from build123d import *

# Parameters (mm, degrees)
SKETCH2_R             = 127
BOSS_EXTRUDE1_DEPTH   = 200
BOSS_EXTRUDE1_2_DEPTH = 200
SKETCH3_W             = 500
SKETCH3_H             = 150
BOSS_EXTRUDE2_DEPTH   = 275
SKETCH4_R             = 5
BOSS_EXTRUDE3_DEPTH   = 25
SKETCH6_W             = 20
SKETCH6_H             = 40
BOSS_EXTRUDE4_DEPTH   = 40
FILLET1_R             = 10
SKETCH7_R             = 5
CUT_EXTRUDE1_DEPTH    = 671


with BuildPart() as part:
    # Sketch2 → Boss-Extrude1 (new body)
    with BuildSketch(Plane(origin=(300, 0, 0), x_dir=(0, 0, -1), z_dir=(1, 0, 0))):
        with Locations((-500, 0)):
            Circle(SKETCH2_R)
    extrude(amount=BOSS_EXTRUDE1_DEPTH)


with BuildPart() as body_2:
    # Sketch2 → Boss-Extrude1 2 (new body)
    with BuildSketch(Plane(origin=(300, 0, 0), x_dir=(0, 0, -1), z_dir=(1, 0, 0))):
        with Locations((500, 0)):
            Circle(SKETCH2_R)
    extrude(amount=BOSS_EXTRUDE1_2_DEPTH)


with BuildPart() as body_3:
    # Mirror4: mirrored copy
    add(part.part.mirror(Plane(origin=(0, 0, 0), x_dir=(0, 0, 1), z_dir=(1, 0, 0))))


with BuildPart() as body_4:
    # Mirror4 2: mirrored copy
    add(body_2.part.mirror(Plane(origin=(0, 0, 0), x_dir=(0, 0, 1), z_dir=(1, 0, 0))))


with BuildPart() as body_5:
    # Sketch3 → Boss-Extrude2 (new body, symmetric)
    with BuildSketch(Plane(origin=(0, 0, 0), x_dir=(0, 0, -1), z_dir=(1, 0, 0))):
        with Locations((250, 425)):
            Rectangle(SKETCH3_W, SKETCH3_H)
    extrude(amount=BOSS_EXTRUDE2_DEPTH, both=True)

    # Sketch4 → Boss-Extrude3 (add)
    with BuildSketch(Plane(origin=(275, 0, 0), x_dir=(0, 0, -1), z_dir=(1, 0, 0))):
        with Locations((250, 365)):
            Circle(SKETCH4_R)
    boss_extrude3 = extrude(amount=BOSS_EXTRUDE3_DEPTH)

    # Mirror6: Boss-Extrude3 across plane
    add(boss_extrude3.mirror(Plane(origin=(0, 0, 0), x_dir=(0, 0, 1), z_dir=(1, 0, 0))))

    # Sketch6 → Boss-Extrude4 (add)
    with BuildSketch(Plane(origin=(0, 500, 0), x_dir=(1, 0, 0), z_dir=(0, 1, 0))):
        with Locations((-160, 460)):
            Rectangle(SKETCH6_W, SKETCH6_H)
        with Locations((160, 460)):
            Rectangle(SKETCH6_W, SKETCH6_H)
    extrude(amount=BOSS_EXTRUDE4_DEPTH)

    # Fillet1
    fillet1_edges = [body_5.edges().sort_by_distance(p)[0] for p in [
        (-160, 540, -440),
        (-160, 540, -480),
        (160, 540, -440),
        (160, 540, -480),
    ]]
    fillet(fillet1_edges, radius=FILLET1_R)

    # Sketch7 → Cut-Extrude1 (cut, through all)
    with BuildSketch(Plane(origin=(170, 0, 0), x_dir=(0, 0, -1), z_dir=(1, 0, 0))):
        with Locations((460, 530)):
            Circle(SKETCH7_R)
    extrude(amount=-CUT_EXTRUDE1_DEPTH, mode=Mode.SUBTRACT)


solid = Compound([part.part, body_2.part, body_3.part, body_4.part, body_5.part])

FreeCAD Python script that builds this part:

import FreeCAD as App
import Part
import Sketcher

V = App.Vector
Q = App.Units.Quantity


def edges_at(feature, points):
    """Names of the edges that pass closest to the given points."""
    edges = feature.Shape.Edges
    near = lambda p: min(range(len(edges)), key=lambda i: edges[i].distToShape(Part.Vertex(*p))[0])
    return sorted({f"Edge{near(p) + 1}" for p in points})


def add_polygon(sketch, points):
    """Adds a closed chain of lines whose ends are joined by coincident constraints."""
    first, n = sketch.GeometryCount, len(points)
    for a, b in zip(points, points[1:] + points[:1]):
        sketch.addGeometry(Part.LineSegment(App.Vector(*a, 0), App.Vector(*b, 0)), False)
    for i in range(n):
        sketch.addConstraint(Sketcher.Constraint("Coincident", first + i, 2, first + (i + 1) % n, 1))

doc = App.newDocument("Part")
body = doc.addObject("PartDesign::Body", "Body")

# Sketch on YZ plane
sketch1 = body.newObject("Sketcher::SketchObject", "Sketch")
sketch1.AttachmentSupport = (doc.getObject("YZ_Plane"), [""])
sketch1.MapMode = "FlatFace"
sketch1.AttachmentOffset = App.Placement(V(0, 0, 300), App.Rotation())
sketch1.addGeometry(Part.Circle(V(0, 500, 0), V(0, 0, 1), 127), False)
sketch1.addConstraint([
    Sketcher.Constraint("PointOnObject", 0, 3, -2),
    Sketcher.Constraint("Diameter", 0, Q("254 mm")),
    Sketcher.Constraint("DistanceY", -1, 1, 0, 3, Q("500 mm")),
])
pad1 = body.newObject("PartDesign::Pad", "Pad")
pad1.Profile = sketch1
pad1.Length = 200
body2 = doc.addObject("PartDesign::Body", "Body001")

# Sketch on YZ plane
sketch2 = body2.newObject("Sketcher::SketchObject", "Sketch001")
sketch2.AttachmentSupport = (doc.getObject("YZ_Plane001"), [""])
sketch2.MapMode = "FlatFace"
sketch2.AttachmentOffset = App.Placement(V(0, 0, 300), App.Rotation())
sketch2.addGeometry(Part.Circle(V(0, -500, 0), V(0, 0, 1), 127), False)
sketch2.addConstraint([
    Sketcher.Constraint("PointOnObject", 0, 3, -2),
    Sketcher.Constraint("Diameter", 0, Q("254 mm")),
    Sketcher.Constraint("DistanceY", 0, 3, -1, 1, Q("500 mm")),
])
pad2 = body2.newObject("PartDesign::Pad", "Pad001")
pad2.Profile = sketch2
pad2.Length = 200
body3 = doc.addObject("PartDesign::Body", "Body002")
doc.recompute()

mirroring = doc.addObject("Part::Mirroring", "Mirroring")
mirroring.Source = body
mirroring.Base = V(0, 0, 0)
mirroring.Normal = V(1, 0, 0)
body3.BaseFeature = mirroring
doc.recompute()
body4 = doc.addObject("PartDesign::Body", "Body003")
doc.recompute()

mirroring2 = doc.addObject("Part::Mirroring", "Mirroring001")
mirroring2.Source = body2
mirroring2.Base = V(0, 0, 0)
mirroring2.Normal = V(1, 0, 0)
body4.BaseFeature = mirroring2
doc.recompute()
body5 = doc.addObject("PartDesign::Body", "Body004")

# Sketch on YZ plane
sketch3 = body5.newObject("Sketcher::SketchObject", "Sketch002")
sketch3.AttachmentSupport = (doc.getObject("YZ_Plane004"), [""])
sketch3.MapMode = "FlatFace"
add_polygon(sketch3, [(500, 0), (350, 0), (350, -500), (500, -500)])  # lines 0-3
sketch3.addConstraint([
    Sketcher.Constraint("Horizontal", 0),
    Sketcher.Constraint("Vertical", 1),
    Sketcher.Constraint("Horizontal", 2),
    Sketcher.Constraint("Vertical", 3),
    Sketcher.Constraint("PointOnObject", 0, 2, -1),
    Sketcher.Constraint("DistanceX", 0, 2, 0, 1, Q("150 mm")),
    Sketcher.Constraint("DistanceY", 1, 2, 1, 1, Q("500 mm")),
    Sketcher.Constraint("DistanceX", -1, 1, 0, 2, Q("350 mm")),
])
pad3 = body5.newObject("PartDesign::Pad", "Pad002")
pad3.Profile = sketch3
pad3.Length = 550
pad3.Midplane = True

# Sketch on YZ plane
sketch4 = body5.newObject("Sketcher::SketchObject", "Sketch003")
sketch4.AttachmentSupport = (doc.getObject("YZ_Plane004"), [""])
sketch4.MapMode = "FlatFace"
sketch4.AttachmentOffset = App.Placement(V(0, 0, 275), App.Rotation())
sketch4.addGeometry(Part.Circle(V(365, -250, 0), V(0, 0, 1), 5), False)
sketch4.addConstraint([
    Sketcher.Constraint("Diameter", 0, Q("10 mm")),
    Sketcher.Constraint("DistanceX", -1, 1, 0, 3, Q("365 mm")),
    Sketcher.Constraint("DistanceY", 0, 3, -1, 1, Q("250 mm")),
])
pad4 = body5.newObject("PartDesign::Pad", "Pad003")
pad4.Profile = sketch4
pad4.Length = 25
doc.recompute()

mirrored = body5.newObject("PartDesign::Mirrored", "Mirrored")
mirrored.Originals = [pad4]
mirrored.MirrorPlane = (doc.getObject("YZ_Plane004"), [""])
body5.Tip = mirrored

# Sketch on XZ plane
sketch5 = body5.newObject("Sketcher::SketchObject", "Sketch004")
sketch5.AttachmentSupport = (doc.getObject("XZ_Plane004"), [""])
sketch5.MapMode = "FlatFace"
sketch5.AttachmentOffset = App.Placement(V(0, 0, -500), App.Rotation())
add_polygon(sketch5, [(-170, -480), (-170, -440), (-150, -440), (-150, -480)])  # lines 0-3
add_polygon(sketch5, [(150, -480), (150, -440), (170, -440), (170, -480)])  # lines 4-7
sketch5.addConstraint([
    Sketcher.Constraint("Vertical", 0),
    Sketcher.Constraint("Horizontal", 1),
    Sketcher.Constraint("Vertical", 2),
    Sketcher.Constraint("Horizontal", 3),
    Sketcher.Constraint("Vertical", 4),
    Sketcher.Constraint("Horizontal", 5),
    Sketcher.Constraint("Vertical", 6),
    Sketcher.Constraint("Horizontal", 7),
    Sketcher.Constraint("Symmetric", 1, 2, 4, 2, -2),
    Sketcher.Constraint("Symmetric", 3, 2, 6, 2, -2),
    Sketcher.Constraint("DistanceX", 1, 1, 1, 2, Q("20 mm")),
    Sketcher.Constraint("DistanceY", 0, 1, 0, 2, Q("40 mm")),
    Sketcher.Constraint("DistanceX", 0, 2, -1, 1, Q("170 mm")),
    Sketcher.Constraint("DistanceY", 0, 2, -1, 1, Q("440 mm")),
])
pad5 = body5.newObject("PartDesign::Pad", "Pad004")
pad5.Profile = sketch5
pad5.Length = 40
pad5.Reversed = True
doc.recompute()

fillet = body5.newObject("PartDesign::Fillet", "Fillet")
fillet.Base = (pad5, edges_at(pad5, [
    (-160, 540, -440),
    (-160, 540, -480),
    (160, 540, -440),
    (160, 540, -480),
]))
fillet.Radius = 10

# Sketch on YZ plane
sketch6 = body5.newObject("Sketcher::SketchObject", "Sketch005")
sketch6.AttachmentSupport = (doc.getObject("YZ_Plane004"), [""])
sketch6.MapMode = "FlatFace"
sketch6.AttachmentOffset = App.Placement(V(0, 0, 170), App.Rotation())
sketch6.addGeometry(Part.Circle(V(530, -460, 0), V(0, 0, 1), 5), False)
sketch6.addConstraint([
    Sketcher.Constraint("Diameter", 0, Q("10 mm")),
    Sketcher.Constraint("DistanceX", -1, 1, 0, 3, Q("530 mm")),
    Sketcher.Constraint("DistanceY", 0, 3, -1, 1, Q("460 mm")),
])
pocket1 = body5.newObject("PartDesign::Pocket", "Pocket")
pocket1.Profile = sketch6
pocket1.Type = "ThroughAll"
mirroring.Visibility = False
mirroring2.Visibility = False

doc.recompute()
